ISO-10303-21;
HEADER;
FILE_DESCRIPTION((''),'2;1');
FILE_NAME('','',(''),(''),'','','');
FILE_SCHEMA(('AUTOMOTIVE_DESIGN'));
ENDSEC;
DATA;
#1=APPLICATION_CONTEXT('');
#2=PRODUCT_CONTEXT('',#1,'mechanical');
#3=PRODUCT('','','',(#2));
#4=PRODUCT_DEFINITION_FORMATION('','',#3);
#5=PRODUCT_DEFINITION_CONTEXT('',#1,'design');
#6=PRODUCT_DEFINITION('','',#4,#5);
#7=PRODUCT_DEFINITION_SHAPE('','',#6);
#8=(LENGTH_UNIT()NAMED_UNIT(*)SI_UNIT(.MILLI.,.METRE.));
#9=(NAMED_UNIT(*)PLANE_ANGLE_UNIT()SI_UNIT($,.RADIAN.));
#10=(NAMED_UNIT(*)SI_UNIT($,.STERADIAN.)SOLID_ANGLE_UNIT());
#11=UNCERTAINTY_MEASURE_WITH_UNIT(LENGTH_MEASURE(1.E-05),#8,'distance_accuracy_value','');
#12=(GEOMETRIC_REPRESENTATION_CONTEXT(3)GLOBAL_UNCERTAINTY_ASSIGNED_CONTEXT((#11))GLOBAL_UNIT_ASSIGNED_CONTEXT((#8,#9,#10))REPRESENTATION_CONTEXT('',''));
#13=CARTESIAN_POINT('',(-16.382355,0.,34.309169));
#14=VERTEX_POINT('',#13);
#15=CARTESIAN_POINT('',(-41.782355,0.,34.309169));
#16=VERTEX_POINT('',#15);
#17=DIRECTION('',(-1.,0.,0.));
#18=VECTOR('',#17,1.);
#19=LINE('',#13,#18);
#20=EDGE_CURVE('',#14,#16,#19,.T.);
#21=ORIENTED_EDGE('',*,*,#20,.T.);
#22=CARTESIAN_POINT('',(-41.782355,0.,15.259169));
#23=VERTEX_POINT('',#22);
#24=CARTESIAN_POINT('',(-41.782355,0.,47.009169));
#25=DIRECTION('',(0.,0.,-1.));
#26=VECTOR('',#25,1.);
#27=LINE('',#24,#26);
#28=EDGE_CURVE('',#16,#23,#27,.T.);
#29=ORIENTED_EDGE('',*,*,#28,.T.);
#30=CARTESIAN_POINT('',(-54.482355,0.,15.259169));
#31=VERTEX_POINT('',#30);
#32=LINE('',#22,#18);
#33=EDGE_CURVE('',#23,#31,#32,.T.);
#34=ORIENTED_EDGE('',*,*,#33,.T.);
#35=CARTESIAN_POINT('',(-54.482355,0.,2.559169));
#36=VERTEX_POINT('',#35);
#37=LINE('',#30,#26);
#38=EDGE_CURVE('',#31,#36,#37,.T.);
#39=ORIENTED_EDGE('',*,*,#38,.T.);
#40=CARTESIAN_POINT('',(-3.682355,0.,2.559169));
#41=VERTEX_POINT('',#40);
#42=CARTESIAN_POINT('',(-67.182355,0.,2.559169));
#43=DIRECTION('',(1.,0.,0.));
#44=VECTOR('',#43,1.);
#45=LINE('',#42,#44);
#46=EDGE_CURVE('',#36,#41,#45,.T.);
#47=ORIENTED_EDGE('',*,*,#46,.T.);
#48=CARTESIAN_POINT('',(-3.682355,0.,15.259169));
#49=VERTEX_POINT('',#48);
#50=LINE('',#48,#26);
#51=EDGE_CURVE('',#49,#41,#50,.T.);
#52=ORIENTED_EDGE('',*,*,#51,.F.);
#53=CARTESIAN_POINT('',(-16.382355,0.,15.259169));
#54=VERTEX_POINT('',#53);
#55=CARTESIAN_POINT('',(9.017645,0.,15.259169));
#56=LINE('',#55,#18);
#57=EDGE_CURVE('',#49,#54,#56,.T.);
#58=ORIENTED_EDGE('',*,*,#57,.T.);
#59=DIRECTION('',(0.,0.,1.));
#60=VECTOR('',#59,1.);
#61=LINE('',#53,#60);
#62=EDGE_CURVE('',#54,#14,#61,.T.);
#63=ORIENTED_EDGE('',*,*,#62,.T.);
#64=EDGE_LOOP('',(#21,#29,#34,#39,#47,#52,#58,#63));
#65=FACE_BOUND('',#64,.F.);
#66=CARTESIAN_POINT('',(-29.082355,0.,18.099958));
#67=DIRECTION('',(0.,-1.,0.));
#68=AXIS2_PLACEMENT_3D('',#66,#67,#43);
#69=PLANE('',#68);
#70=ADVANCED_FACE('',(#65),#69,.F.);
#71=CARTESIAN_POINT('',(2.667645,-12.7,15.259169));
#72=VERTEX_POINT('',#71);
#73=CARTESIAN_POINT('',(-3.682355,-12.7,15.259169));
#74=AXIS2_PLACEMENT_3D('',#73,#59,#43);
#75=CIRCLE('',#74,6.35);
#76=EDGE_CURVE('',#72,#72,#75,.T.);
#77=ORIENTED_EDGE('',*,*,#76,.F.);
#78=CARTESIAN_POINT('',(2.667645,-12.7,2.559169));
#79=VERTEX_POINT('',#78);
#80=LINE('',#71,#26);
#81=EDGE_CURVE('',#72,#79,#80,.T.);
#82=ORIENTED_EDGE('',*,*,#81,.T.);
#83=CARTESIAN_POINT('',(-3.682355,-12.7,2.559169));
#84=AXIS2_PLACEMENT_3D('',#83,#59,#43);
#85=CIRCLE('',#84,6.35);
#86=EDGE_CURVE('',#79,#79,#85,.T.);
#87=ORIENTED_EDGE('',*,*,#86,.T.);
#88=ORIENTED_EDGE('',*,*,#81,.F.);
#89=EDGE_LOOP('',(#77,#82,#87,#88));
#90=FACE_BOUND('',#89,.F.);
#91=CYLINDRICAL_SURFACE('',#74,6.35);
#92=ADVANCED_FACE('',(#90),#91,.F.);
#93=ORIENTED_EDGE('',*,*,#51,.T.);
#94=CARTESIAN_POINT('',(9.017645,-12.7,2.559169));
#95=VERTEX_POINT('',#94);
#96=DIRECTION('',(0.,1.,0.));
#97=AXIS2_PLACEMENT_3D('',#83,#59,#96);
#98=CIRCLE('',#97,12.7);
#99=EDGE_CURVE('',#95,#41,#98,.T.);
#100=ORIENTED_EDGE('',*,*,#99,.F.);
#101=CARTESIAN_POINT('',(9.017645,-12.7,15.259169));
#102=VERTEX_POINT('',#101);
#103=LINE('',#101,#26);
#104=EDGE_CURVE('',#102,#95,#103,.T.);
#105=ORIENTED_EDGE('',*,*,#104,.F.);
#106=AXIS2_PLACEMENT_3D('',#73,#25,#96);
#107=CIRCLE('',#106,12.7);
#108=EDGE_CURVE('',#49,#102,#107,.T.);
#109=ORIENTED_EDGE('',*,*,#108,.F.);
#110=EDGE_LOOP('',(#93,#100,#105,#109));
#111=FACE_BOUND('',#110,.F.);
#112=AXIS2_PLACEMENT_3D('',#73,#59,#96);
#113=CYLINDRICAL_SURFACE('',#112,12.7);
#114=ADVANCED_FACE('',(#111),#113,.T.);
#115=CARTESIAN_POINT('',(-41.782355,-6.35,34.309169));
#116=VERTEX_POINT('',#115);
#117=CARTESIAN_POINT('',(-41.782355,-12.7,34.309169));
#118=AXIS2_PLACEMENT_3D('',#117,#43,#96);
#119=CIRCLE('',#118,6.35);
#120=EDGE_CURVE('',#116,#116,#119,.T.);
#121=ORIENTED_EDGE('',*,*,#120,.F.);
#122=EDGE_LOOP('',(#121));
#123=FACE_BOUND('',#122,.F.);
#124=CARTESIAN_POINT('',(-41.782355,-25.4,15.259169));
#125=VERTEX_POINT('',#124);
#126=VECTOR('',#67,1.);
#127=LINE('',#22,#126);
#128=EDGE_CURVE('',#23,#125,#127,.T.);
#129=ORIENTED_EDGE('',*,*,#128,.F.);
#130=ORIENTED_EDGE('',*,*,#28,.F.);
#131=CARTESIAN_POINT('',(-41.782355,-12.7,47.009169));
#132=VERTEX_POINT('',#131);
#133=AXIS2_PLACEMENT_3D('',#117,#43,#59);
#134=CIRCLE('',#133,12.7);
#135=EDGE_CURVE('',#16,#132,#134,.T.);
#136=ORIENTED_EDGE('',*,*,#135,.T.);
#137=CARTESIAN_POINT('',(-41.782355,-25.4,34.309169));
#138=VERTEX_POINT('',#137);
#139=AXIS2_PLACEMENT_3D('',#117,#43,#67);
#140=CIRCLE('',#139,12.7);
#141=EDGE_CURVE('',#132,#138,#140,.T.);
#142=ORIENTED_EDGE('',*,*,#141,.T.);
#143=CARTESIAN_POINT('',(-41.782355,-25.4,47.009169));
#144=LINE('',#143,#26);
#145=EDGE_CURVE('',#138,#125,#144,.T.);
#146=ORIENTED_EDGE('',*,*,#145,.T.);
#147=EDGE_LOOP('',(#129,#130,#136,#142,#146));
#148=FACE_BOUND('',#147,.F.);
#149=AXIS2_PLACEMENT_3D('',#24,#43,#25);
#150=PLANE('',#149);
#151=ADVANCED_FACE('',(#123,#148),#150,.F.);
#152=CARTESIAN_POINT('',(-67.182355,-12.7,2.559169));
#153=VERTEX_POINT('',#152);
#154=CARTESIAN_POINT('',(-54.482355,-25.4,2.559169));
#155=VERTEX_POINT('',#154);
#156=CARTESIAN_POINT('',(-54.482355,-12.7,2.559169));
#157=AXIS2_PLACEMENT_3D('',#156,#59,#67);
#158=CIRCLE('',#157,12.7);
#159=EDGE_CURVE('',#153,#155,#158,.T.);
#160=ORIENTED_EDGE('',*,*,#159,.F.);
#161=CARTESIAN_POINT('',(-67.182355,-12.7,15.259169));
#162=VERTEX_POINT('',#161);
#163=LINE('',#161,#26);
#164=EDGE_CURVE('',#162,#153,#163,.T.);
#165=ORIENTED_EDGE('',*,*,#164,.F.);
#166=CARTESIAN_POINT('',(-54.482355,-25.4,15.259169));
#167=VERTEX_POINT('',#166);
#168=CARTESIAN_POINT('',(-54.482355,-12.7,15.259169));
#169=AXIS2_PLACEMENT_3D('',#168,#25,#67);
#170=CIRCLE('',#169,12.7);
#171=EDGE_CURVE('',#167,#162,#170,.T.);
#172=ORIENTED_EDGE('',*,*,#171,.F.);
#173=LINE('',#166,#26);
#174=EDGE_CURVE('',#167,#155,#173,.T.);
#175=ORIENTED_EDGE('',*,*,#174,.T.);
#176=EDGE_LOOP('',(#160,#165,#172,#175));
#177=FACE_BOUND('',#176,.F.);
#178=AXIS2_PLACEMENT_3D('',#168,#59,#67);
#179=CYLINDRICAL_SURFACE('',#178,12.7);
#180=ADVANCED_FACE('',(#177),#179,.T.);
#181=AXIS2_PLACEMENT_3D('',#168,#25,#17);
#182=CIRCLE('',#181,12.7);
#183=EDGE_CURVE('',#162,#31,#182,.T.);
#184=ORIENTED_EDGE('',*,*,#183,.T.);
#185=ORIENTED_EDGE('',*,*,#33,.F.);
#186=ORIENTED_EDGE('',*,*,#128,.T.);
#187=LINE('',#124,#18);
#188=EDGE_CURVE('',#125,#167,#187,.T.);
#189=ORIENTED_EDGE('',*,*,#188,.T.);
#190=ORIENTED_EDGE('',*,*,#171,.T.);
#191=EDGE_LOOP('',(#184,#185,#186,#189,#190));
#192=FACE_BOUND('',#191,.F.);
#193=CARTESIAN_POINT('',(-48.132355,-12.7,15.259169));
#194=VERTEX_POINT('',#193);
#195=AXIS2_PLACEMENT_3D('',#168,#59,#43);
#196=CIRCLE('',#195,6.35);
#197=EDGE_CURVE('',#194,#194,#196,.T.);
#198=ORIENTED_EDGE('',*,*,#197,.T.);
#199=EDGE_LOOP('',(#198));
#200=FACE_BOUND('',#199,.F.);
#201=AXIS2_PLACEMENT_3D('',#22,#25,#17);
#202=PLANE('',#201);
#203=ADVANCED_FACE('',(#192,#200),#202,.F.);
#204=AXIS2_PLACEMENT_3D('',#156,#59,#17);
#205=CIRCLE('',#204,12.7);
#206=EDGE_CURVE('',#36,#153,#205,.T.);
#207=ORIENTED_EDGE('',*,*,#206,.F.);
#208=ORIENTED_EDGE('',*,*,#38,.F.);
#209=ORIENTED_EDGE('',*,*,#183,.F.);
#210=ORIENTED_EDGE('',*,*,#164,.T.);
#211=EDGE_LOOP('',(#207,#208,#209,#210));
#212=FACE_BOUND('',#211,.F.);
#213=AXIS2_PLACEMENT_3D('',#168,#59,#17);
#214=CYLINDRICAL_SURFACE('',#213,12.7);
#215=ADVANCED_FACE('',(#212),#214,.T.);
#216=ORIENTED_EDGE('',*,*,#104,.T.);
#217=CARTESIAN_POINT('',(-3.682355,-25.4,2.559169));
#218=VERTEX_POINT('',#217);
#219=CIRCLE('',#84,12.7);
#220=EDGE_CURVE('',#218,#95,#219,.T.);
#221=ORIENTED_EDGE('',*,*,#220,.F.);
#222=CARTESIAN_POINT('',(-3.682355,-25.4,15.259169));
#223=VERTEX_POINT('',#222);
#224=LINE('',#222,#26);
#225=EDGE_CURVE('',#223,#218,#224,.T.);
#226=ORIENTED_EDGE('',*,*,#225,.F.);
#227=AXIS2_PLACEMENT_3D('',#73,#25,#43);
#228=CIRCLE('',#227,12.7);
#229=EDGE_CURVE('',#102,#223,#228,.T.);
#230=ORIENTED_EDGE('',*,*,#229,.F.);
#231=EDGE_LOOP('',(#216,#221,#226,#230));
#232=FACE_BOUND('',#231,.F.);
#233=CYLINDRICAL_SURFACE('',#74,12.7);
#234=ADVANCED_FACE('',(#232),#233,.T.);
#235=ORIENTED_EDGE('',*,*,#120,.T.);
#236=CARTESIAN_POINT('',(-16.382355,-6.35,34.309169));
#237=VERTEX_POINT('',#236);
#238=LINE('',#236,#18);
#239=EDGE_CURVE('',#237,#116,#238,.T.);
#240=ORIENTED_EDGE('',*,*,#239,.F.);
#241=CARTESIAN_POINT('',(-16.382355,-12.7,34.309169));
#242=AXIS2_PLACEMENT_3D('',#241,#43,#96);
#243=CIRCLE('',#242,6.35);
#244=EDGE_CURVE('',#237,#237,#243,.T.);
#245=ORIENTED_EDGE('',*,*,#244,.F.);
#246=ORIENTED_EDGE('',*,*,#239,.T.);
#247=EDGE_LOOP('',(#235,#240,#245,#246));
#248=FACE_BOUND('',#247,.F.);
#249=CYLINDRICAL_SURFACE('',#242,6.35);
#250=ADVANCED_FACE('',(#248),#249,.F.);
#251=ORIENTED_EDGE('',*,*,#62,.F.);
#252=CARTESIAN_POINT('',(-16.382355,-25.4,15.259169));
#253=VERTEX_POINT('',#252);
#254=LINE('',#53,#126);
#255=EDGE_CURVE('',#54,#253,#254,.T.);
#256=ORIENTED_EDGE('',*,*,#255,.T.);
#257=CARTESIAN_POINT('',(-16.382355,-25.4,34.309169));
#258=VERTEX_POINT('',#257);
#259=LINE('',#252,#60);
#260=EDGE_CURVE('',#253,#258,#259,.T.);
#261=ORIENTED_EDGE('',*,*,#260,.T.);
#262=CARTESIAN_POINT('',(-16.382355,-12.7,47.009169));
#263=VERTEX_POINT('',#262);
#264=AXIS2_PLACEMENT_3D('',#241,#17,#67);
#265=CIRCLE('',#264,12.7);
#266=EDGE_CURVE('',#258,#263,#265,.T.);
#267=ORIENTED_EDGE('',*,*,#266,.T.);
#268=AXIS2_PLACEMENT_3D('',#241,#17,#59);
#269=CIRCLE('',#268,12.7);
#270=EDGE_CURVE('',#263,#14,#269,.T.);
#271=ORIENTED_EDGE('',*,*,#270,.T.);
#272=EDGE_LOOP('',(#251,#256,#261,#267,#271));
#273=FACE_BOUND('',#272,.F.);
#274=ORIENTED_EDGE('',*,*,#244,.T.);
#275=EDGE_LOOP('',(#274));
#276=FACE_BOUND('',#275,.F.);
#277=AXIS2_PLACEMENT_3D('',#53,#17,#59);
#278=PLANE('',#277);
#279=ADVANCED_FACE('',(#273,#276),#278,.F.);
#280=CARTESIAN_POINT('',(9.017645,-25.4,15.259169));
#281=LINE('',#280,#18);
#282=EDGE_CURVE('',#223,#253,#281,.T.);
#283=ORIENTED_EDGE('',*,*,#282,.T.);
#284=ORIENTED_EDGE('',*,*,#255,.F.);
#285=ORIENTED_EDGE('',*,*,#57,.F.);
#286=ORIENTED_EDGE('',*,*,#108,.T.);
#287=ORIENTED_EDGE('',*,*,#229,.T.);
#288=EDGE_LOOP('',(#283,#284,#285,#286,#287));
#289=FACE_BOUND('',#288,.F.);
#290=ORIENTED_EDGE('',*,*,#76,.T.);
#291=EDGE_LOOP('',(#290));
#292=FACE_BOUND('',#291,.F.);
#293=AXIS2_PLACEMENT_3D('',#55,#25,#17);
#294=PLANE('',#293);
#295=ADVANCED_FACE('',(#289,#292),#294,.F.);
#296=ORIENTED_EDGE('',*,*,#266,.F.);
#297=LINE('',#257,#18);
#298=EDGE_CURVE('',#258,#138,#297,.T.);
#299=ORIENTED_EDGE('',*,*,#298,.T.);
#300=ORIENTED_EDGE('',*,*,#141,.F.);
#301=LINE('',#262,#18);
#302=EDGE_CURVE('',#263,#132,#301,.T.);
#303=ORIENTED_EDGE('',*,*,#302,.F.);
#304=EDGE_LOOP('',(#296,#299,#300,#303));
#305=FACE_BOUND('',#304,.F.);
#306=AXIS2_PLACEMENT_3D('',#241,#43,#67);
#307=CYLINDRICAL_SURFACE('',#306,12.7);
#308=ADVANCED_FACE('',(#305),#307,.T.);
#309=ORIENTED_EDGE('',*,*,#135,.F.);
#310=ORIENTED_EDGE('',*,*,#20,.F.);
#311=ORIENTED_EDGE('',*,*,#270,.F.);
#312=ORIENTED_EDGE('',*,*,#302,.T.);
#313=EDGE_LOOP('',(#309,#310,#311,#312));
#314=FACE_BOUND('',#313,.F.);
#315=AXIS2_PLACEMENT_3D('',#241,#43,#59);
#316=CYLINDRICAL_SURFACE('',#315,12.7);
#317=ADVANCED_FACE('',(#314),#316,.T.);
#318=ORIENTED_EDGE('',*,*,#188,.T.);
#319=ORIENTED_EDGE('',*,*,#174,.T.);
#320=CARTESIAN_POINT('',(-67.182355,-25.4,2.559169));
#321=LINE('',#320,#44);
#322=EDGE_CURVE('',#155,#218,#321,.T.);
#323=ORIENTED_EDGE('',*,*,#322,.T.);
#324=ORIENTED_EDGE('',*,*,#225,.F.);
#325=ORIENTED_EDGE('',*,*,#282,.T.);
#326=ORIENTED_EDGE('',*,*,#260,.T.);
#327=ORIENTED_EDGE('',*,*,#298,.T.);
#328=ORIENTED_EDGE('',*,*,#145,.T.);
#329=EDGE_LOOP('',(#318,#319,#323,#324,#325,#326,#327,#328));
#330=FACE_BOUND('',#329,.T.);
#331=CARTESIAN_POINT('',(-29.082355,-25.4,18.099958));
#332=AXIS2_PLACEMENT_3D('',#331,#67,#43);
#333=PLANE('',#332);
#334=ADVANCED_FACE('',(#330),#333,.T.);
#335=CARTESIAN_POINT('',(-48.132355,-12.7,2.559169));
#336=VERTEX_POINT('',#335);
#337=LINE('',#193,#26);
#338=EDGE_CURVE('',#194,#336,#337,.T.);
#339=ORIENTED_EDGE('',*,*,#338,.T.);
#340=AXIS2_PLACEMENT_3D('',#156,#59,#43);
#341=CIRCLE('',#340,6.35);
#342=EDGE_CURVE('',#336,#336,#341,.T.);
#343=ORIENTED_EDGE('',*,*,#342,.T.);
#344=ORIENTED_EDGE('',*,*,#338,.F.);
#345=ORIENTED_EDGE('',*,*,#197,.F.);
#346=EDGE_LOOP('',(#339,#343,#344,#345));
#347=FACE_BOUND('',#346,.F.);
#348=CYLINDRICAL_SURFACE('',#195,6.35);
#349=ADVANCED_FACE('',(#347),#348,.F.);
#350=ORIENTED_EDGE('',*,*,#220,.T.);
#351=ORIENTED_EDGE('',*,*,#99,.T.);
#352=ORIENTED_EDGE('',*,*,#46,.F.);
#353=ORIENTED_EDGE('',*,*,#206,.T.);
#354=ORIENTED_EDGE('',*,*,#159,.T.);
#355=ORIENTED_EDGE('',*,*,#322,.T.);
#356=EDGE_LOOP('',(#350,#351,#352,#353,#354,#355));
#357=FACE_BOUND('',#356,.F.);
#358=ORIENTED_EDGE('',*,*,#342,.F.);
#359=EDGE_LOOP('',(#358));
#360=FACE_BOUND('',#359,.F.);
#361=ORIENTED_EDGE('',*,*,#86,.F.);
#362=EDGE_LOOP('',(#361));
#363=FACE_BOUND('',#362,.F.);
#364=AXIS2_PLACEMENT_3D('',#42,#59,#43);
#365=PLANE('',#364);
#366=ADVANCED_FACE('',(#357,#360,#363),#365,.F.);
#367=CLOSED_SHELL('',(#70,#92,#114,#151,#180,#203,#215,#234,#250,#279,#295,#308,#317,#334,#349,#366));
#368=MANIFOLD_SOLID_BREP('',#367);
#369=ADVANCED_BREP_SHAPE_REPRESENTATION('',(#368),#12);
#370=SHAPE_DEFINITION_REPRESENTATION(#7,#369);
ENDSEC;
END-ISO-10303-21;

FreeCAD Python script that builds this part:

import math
import FreeCAD as App
import Part
import Sketcher

V = App.Vector
Q = App.Units.Quantity

doc = App.newDocument("Part")
body = doc.addObject("PartDesign::Body", "Body")

# Sketch on XZ plane
sketch1 = doc.addObject("Sketcher::SketchObject", "Sketch")
body.addObject(sketch1)
sketch1.AttachmentSupport = (doc.XZ_Plane, [""])
sketch1.MapMode = "FlatFace"
sketch1.addGeometry([
    Part.LineSegment(V(-42, 15, 0), V(-67, 15, 0)),  # 0
    Part.LineSegment(V(-67, 15, 0), V(-67, 3, 0)),  # 1
    Part.LineSegment(V(-67, 3, 0), V(9, 3, 0)),  # 2
    Part.LineSegment(V(9, 3, 0), V(9, 15, 0)),  # 3
    Part.LineSegment(V(9, 15, 0), V(-16, 15, 0)),  # 4
    Part.LineSegment(V(-16, 15, 0), V(-16, 47, 0)),  # 5
    Part.LineSegment(V(-16, 47, 0), V(-42, 47, 0)),  # 6
    Part.LineSegment(V(-42, 47, 0), V(-42, 15, 0)),  # 7
], False)
sketch1.addConstraint([
    Sketcher.Constraint("Coincident", 0, 2, 1, 1),
    Sketcher.Constraint("Coincident", 1, 2, 2, 1),
    Sketcher.Constraint("Coincident", 2, 2, 3, 1),
    Sketcher.Constraint("Coincident", 3, 2, 4, 1),
    Sketcher.Constraint("Coincident", 4, 2, 5, 1),
    Sketcher.Constraint("Coincident", 5, 2, 6, 1),
    Sketcher.Constraint("Coincident", 6, 2, 7, 1),
    Sketcher.Constraint("Coincident", 7, 2, 0, 1),
    Sketcher.Constraint("Horizontal", 0),
    Sketcher.Constraint("Vertical", 1),
    Sketcher.Constraint("Horizontal", 2),
    Sketcher.Constraint("Vertical", 3),
    Sketcher.Constraint("Horizontal", 4),
    Sketcher.Constraint("Vertical", 5),
    Sketcher.Constraint("Horizontal", 6),
    Sketcher.Constraint("Vertical", 7),
    Sketcher.Constraint("Horizontal", 0, 2, 3, 2),
    Sketcher.Constraint("Equal", 0, 4),
    Sketcher.Constraint("Equal", 4, 6),
    Sketcher.Constraint("DistanceX", 0, 2, 0, 1, Q("1 in")),
    Sketcher.Constraint("DistanceY", 1, 2, 1, 1, Q("0.5 in")),
    Sketcher.Constraint("DistanceY", 5, 1, 5, 2, Q("1.25 in")),
    Sketcher.Constraint("DistanceY", -1, 1, 0, 2, Q("15.259169 mm")),
    Sketcher.Constraint("DistanceX", 0, 2, -1, 1, Q("67.182355 mm")),
])
pad1 = doc.addObject("PartDesign::Pad", "Pad")
body.addObject(pad1)
pad1.Profile = sketch1
pad1.Length = Q("1 in")

# Sketch on XY plane
sketch2 = doc.addObject("Sketcher::SketchObject", "Sketch001")
body.addObject(sketch2)
sketch2.AttachmentSupport = (doc.XY_Plane, [""])
sketch2.MapMode = "FlatFace"
sketch2.AttachmentOffset = App.Placement(V(0, 0, 15.259169), App.Rotation())
sketch2.addGeometry([
    Part.Circle(V(-54, -13, 0), V(0, 0, 1), 6),
    Part.Circle(V(-4, -13, 0), V(0, 0, 1), 6),
], False)
sketch2.addConstraint([
    Sketcher.Constraint("Equal", 0, 1),
    Sketcher.Constraint("Horizontal", 0, 3, 1, 3),
    Sketcher.Constraint("Diameter", 0, Q("0.5 in")),
    Sketcher.Constraint("DistanceX", 0, 3, 1, 3, Q("2 in")),
    Sketcher.Constraint("DistanceY", 0, 3, -1, 1, Q("0.5 in")),
    Sketcher.Constraint("DistanceX", 0, 3, -1, 1, Q("54.482355 mm")),
])
pocket1 = doc.addObject("PartDesign::Pocket", "Pocket")
body.addObject(pocket1)
pocket1.Profile = sketch2
pocket1.Type = "ThroughAll"

# Sketch on YZ plane
sketch3 = doc.addObject("Sketcher::SketchObject", "Sketch002")
body.addObject(sketch3)
sketch3.AttachmentSupport = (doc.YZ_Plane, [""])
sketch3.MapMode = "FlatFace"
sketch3.AttachmentOffset = App.Placement(V(0, 0, -16.382355), App.Rotation())
sketch3.addGeometry([
    Part.ArcOfCircle(Part.Circle(V(-13, 34, 0), V(0, 0, 1), 13), math.radians(90), math.radians(180)),  # 0
    Part.LineSegment(V(-13, 47, 0), V(-25, 47, 0)),  # 1
    Part.LineSegment(V(-25, 47, 0), V(-25, 34, 0)),  # 2
    Part.ArcOfCircle(Part.Circle(V(-13, 34, 0), V(0, 0, 1), 13), math.radians(0), math.radians(90)),  # 3
    Part.LineSegment(V(0, 34, 0), V(0, 47, 0)),  # 4
    Part.LineSegment(V(0, 47, 0), V(-13, 47, 0)),  # 5
], False)
sketch3.addConstraint([
    Sketcher.Constraint("Tangent", 0, 1, 1, 1),
    Sketcher.Constraint("Coincident", 1, 2, 2, 1),
    Sketcher.Constraint("Tangent", 2, 2, 0, 2),
    Sketcher.Constraint("Tangent", 3, 1, 4, 1),
    Sketcher.Constraint("Coincident", 4, 2, 5, 1),
    Sketcher.Constraint("Tangent", 5, 2, 3, 2),
    Sketcher.Constraint("Horizontal", 1),
    Sketcher.Constraint("Vertical", 2),
    Sketcher.Constraint("Vertical", 4),
    Sketcher.Constraint("Horizontal", 5),
    Sketcher.Constraint("Coincident", 3, 3, 0, 3),
    Sketcher.Constraint("Equal", 0, 3),
    Sketcher.Constraint("PointOnObject", 3, 1, -2),
    Sketcher.Constraint("Radius", 0, Q("0.5 in")),
    Sketcher.Constraint("DistanceY", -1, 1, 0, 3, Q("34.309169 mm")),
])
pocket2 = doc.addObject("PartDesign::Pocket", "Pocket001")
body.addObject(pocket2)
pocket2.Profile = sketch3
pocket2.Type = "ThroughAll"

# Sketch on YZ plane
sketch4 = doc.addObject("Sketcher::SketchObject", "Sketch003")
body.addObject(sketch4)
sketch4.AttachmentSupport = (doc.YZ_Plane, [""])
sketch4.MapMode = "FlatFace"
sketch4.AttachmentOffset = App.Placement(V(0, 0, -16.382355), App.Rotation())
sketch4.addGeometry(Part.Circle(V(-13, 34, 0), V(0, 0, 1), 6), False)
sketch4.addConstraint([
    Sketcher.Constraint("Diameter", 0, Q("0.5 in")),
    Sketcher.Constraint("DistanceX", 0, 3, -1, 1, Q("0.5 in")),
    Sketcher.Constraint("DistanceY", -1, 1, 0, 3, Q("34.309169 mm")),
])
pocket3 = doc.addObject("PartDesign::Pocket", "Pocket002")
body.addObject(pocket3)
pocket3.Profile = sketch4
pocket3.Type = "ThroughAll"

# Sketch on XY plane
sketch5 = doc.addObject("Sketcher::SketchObject", "Sketch004")
body.addObject(sketch5)
sketch5.AttachmentSupport = (doc.XY_Plane, [""])
sketch5.MapMode = "FlatFace"
sketch5.AttachmentOffset = App.Placement(V(0, 0, 15.259169), App.Rotation())
sketch5.addGeometry([
    Part.ArcOfCircle(Part.Circle(V(-4, -13, 0), V(0, 0, 1), 13), math.radians(0), math.radians(90)),  # 0
    Part.LineSegment(V(9, -13, 0), V(9, 0, 0)),  # 1
    Part.LineSegment(V(9, 0, 0), V(-4, 0, 0)),  # 2
    Part.LineSegment(V(9, -25, 0), V(9, -13, 0)),  # 3
    Part.ArcOfCircle(Part.Circle(V(-4, -13, 0), V(0, 0, 1), 13), math.radians(-90), math.radians(0)),  # 4
    Part.LineSegment(V(-4, -25, 0), V(9, -25, 0)),  # 5
], False)
sketch5.addConstraint([
    Sketcher.Constraint("Tangent", 0, 1, 1, 1),
    Sketcher.Constraint("Coincident", 1, 2, 2, 1),
    Sketcher.Constraint("Tangent", 2, 2, 0, 2),
    Sketcher.Constraint("Tangent", 3, 2, 4, 2),
    Sketcher.Constraint("Tangent", 4, 1, 5, 1),
    Sketcher.Constraint("Coincident", 5, 2, 3, 1),
    Sketcher.Constraint("Vertical", 1),
    Sketcher.Constraint("Horizontal", 2),
    Sketcher.Constraint("Vertical", 3),
    Sketcher.Constraint("Horizontal", 5),
    Sketcher.Constraint("Coincident", 4, 3, 0, 3),
    Sketcher.Constraint("Equal", 0, 4),
    Sketcher.Constraint("PointOnObject", 1, 2, -1),
    Sketcher.Constraint("Radius", 0, Q("0.5 in")),
    Sketcher.Constraint("DistanceX", 0, 3, -1, 1, Q("3.682355 mm")),
])
pocket4 = doc.addObject("PartDesign::Pocket", "Pocket003")
body.addObject(pocket4)
pocket4.Profile = sketch5
pocket4.Type = "ThroughAll"

# Sketch on XY plane
sketch6 = doc.addObject("Sketcher::SketchObject", "Sketch005")
body.addObject(sketch6)
sketch6.AttachmentSupport = (doc.XY_Plane, [""])
sketch6.MapMode = "FlatFace"
sketch6.AttachmentOffset = App.Placement(V(0, 0, 15.259169), App.Rotation())
sketch6.addGeometry([
    Part.ArcOfCircle(Part.Circle(V(-54, -13, 0), V(0, 0, 1), 13), math.radians(90), math.radians(180)),  # 0
    Part.LineSegment(V(-54, 0, 0), V(-67, 0, 0)),  # 1
    Part.LineSegment(V(-67, 0, 0), V(-67, -13, 0)),  # 2
    Part.LineSegment(V(-67, -25, 0), V(-54, -25, 0)),  # 3
    Part.ArcOfCircle(Part.Circle(V(-54, -13, 0), V(0, 0, 1), 13), math.radians(180), math.radians(270)),  # 4
    Part.LineSegment(V(-67, -13, 0), V(-67, -25, 0)),  # 5
], False)
sketch6.addConstraint([
    Sketcher.Constraint("Tangent", 0, 1, 1, 1),
    Sketcher.Constraint("Coincident", 1, 2, 2, 1),
    Sketcher.Constraint("Tangent", 2, 2, 0, 2),
    Sketcher.Constraint("Tangent", 3, 2, 4, 2),
    Sketcher.Constraint("Tangent", 4, 1, 5, 1),
    Sketcher.Constraint("Coincident", 5, 2, 3, 1),
    Sketcher.Constraint("Horizontal", 1),
    Sketcher.Constraint("Vertical", 2),
    Sketcher.Constraint("Horizontal", 3),
    Sketcher.Constraint("Vertical", 5),
    Sketcher.Constraint("Coincident", 4, 3, 0, 3),
    Sketcher.Constraint("Equal", 0, 4),
    Sketcher.Constraint("PointOnObject", 0, 1, -1),
    Sketcher.Constraint("Radius", 0, Q("0.5 in")),
    Sketcher.Constraint("DistanceX", 0, 3, -1, 1, Q("54.482355 mm")),
])
pocket5 = doc.addObject("PartDesign::Pocket", "Pocket004")
body.addObject(pocket5)
pocket5.Profile = sketch6
pocket5.Type = "ThroughAll"

doc.recompute()
